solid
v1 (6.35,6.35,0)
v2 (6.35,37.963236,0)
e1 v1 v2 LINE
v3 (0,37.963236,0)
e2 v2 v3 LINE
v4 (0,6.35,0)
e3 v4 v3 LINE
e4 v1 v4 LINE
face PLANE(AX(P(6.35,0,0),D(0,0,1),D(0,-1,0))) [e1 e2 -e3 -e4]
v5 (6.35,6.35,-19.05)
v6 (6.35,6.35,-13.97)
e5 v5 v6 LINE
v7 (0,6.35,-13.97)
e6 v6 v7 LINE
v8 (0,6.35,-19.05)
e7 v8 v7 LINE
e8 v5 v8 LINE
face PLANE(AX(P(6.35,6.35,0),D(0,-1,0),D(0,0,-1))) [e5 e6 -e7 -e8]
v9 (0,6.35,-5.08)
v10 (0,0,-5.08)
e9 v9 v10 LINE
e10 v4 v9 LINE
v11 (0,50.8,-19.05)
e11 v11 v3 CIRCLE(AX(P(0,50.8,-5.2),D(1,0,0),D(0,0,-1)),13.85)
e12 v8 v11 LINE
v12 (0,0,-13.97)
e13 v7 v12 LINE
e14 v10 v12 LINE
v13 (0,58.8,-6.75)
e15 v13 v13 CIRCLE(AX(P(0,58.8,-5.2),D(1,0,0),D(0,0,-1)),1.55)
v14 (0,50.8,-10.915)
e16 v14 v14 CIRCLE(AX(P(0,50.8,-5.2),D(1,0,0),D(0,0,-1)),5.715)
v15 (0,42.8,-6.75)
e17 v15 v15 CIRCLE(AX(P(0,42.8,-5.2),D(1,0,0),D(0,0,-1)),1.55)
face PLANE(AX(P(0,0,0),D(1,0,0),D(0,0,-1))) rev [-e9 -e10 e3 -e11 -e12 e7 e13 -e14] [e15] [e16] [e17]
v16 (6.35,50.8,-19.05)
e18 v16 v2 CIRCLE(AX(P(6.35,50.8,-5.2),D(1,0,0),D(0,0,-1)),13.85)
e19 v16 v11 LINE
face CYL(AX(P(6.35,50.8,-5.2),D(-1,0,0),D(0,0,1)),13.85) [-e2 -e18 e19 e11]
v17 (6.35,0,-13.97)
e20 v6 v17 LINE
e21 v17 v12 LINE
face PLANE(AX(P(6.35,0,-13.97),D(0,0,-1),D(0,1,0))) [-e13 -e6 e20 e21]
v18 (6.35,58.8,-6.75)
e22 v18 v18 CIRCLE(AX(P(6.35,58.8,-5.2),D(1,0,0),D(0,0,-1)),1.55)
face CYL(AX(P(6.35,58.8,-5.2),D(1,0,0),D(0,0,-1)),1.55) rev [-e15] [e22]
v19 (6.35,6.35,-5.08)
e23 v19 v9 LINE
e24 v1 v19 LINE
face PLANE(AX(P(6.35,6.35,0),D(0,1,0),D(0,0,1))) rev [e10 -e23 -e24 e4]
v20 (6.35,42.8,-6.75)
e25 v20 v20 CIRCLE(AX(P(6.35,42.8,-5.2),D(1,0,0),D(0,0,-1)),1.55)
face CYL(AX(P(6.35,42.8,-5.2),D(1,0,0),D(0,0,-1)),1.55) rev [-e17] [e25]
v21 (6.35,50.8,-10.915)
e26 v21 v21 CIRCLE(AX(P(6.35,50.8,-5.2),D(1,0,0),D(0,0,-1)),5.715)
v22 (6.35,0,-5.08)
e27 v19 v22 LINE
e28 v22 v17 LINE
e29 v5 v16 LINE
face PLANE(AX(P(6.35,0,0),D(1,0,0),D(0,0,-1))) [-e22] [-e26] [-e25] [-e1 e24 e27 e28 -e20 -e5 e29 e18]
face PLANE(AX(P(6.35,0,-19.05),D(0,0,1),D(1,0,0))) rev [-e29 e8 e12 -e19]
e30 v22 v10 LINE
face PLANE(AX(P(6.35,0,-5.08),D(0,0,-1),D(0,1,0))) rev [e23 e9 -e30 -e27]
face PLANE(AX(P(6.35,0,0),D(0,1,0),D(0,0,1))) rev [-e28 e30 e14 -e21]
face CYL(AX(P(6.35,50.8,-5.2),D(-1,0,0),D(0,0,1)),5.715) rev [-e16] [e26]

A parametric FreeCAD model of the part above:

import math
import FreeCAD as App
import Part
import Sketcher
Q = App.Units.Quantity

doc = App.newDocument("Part")
body = doc.addObject("PartDesign::Body", "Body")

sketch1 = body.newObject("Sketcher::SketchObject", "Sketch")
sketch1.AttachmentSupport = (doc.getObject("YZ_Plane"), [""])
sketch1.MapMode = "FlatFace"
sketch1.addGeometry([
    Part.LineSegment(App.Vector(0, -5.08, 0), App.Vector(0, -13.97, 0)),
    Part.LineSegment(App.Vector(0, -13.97, 0), App.Vector(6.35, -13.97, 0)),
    Part.LineSegment(App.Vector(6.35, -13.97, 0), App.Vector(6.35, -19.05, 0)),
    Part.LineSegment(App.Vector(6.35, -19.05, 0), App.Vector(50.8, -19.05, 0)),
    Part.ArcOfCircle(Part.Circle(App.Vector(50.8, -5.2, 0), App.Vector(0, 0, 1), 13.85), math.radians(-90), math.radians(157.947794)),
    Part.LineSegment(App.Vector(37.963236, 0, 0), App.Vector(6.35, 0, 0)),
    Part.LineSegment(App.Vector(6.35, 0, 0), App.Vector(6.35, -5.08, 0)),
    Part.LineSegment(App.Vector(6.35, -5.08, 0), App.Vector(0, -5.08, 0)),
    Part.Circle(App.Vector(50.8, -5.2, 0), App.Vector(0, 0, 1), 5.715),
], False)
sketch1.addConstraint([
    Sketcher.Constraint("Coincident", 0, 2, 1, 1),
    Sketcher.Constraint("Coincident", 1, 2, 2, 1),
    Sketcher.Constraint("Coincident", 2, 2, 3, 1),
    Sketcher.Constraint("Tangent", 3, 2, 4, 1),
    Sketcher.Constraint("Coincident", 4, 2, 5, 1),
    Sketcher.Constraint("Coincident", 5, 2, 6, 1),
    Sketcher.Constraint("Coincident", 6, 2, 7, 1),
    Sketcher.Constraint("Coincident", 7, 2, 0, 1),
    Sketcher.Constraint("Vertical", 0),
    Sketcher.Constraint("Horizontal", 1),
    Sketcher.Constraint("Vertical", 2),
    Sketcher.Constraint("Horizontal", 3),
    Sketcher.Constraint("Horizontal", 5),
    Sketcher.Constraint("Vertical", 6),
    Sketcher.Constraint("Horizontal", 7),
    Sketcher.Constraint("Coincident", 8, 3, 4, 3),
    Sketcher.Constraint("PointOnObject", 0, 2, -2),
    Sketcher.Constraint("PointOnObject", 4, 2, -1),
    Sketcher.Constraint("Vertical", 2, 2, 5, 2),
    Sketcher.Constraint("Equal", 2, 6),
    Sketcher.Constraint("Diameter", 8, Q("0.45 in")),
    Sketcher.Constraint("DistanceY", 2, 2, 2, 1, Q("0.2 in")),
    Sketcher.Constraint("DistanceX", -1, 1, 4, 3, Q("2 in")),
    Sketcher.Constraint("DistanceX", 1, 1, 1, 2, Q("0.25 in")),
    Sketcher.Constraint("DistanceY", 0, 2, 0, 1, Q("0.35 in")),
    Sketcher.Constraint("Radius", 4, Q("13.85 mm")),
])
pad1 = body.newObject("PartDesign::Pad", "Pad")
pad1.Profile = sketch1
pad1.Length = Q("0.25 in")

sketch2 = body.newObject("Sketcher::SketchObject", "Sketch001")
sketch2.AttachmentSupport = (doc.getObject("YZ_Plane"), [""])
sketch2.MapMode = "FlatFace"
sketch2.AttachmentOffset = App.Placement(App.Vector(0, 0, 0.25 * 25.4), App.Rotation())
sketch2.addGeometry([
    Part.Circle(App.Vector(58.8, -5.2, 0), App.Vector(0, 0, 1), 1.55),
    Part.Circle(App.Vector(42.8, -5.2, 0), App.Vector(0, 0, 1), 1.55),
], False)
sketch2.addConstraint([
    Sketcher.Constraint("Equal", 0, 1),
    Sketcher.Constraint("Horizontal", 0, 3, 1, 3),
    Sketcher.Constraint("Diameter", 0, Q("3.1 mm")),
    Sketcher.Constraint("DistanceX", -1, 1, 0, 3, Q("58.8 mm")),
    Sketcher.Constraint("DistanceY", 0, 3, -1, 1, Q("5.2 mm")),
    Sketcher.Constraint("DistanceX", -1, 1, 1, 3, Q("42.8 mm")),
])
doc.recompute()
hole = body.newObject("PartDesign::Hole", "Hole")
hole.Profile = sketch2
hole.ThreadType = "None"
hole.Diameter = 3.1
hole.DepthType = "ThroughAll"

doc.recompute()
